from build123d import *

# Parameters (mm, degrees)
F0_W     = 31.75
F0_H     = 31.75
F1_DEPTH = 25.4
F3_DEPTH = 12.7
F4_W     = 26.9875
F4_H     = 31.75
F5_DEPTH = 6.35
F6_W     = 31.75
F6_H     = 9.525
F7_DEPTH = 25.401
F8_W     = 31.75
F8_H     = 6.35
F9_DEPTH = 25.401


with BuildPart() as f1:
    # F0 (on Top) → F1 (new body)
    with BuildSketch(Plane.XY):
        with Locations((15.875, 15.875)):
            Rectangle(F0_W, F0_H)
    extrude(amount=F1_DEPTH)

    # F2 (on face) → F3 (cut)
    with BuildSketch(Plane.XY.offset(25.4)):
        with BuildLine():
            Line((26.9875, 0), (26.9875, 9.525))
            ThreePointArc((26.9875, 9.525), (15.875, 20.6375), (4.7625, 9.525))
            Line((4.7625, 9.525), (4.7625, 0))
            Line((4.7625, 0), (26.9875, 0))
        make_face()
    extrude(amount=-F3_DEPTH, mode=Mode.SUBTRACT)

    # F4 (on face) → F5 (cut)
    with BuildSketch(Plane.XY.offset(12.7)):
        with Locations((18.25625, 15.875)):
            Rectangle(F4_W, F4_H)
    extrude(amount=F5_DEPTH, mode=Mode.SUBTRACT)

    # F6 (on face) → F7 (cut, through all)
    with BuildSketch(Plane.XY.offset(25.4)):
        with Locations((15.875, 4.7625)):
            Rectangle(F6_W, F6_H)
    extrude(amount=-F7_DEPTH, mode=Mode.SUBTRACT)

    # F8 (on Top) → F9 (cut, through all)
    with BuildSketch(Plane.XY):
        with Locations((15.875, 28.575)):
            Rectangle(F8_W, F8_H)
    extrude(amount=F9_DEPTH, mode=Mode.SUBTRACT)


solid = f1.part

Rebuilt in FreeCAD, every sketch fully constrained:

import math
import FreeCAD as App
import Part
import Sketcher
Q = App.Units.Quantity


def add_polygon(sketch, points):
    """Adds a closed chain of lines whose ends are joined by coincident constraints."""
    first, n = sketch.GeometryCount, len(points)
    for a, b in zip(points, points[1:] + points[:1]):
        sketch.addGeometry(Part.LineSegment(App.Vector(*a, 0), App.Vector(*b, 0)), False)
    for i in range(n):
        sketch.addConstraint(Sketcher.Constraint("Coincident", first + i, 2, first + (i + 1) % n, 1))

doc = App.newDocument("Part")
body = doc.addObject("PartDesign::Body", "Body")

sketch1 = doc.addObject("Sketcher::SketchObject", "Sketch")
body.addObject(sketch1)
sketch1.AttachmentSupport = (doc.XY_Plane, [""])
sketch1.MapMode = "FlatFace"
add_polygon(sketch1, [(0, 32), (0, 0), (32, 0), (32, 32)])
sketch1.addConstraint(Sketcher.Constraint("Vertical", 0))
sketch1.addConstraint(Sketcher.Constraint("Horizontal", 1))
sketch1.addConstraint(Sketcher.Constraint("Vertical", 2))
sketch1.addConstraint(Sketcher.Constraint("Horizontal", 3))
sketch1.addConstraint(Sketcher.Constraint("Coincident", 0, 2, -1, 1))
sketch1.addConstraint(Sketcher.Constraint("Equal", 3, 0))
sketch1.addConstraint(Sketcher.Constraint("DistanceX", 1, 1, 1, 2, Q("1.25 in")))
pad1 = doc.addObject("PartDesign::Pad", "Pad")
body.addObject(pad1)
pad1.Profile = sketch1
pad1.Length = Q("1 in")

sketch2 = doc.addObject("Sketcher::SketchObject", "Sketch001")
body.addObject(sketch2)
sketch2.AttachmentSupport = (doc.XY_Plane, [""])
sketch2.MapMode = "FlatFace"
sketch2.AttachmentOffset = App.Placement(App.Vector(0, 0, 1 * 25.4), App.Rotation())
sketch2.addGeometry(Part.LineSegment(App.Vector(27, 0, 0), App.Vector(27, 10, 0)), False)
sketch2.addGeometry(Part.ArcOfCircle(Part.Circle(App.Vector(16, 10, 0), App.Vector(0, 0, 1), 11), math.radians(0), math.radians(180)), False)
sketch2.addGeometry(Part.LineSegment(App.Vector(5, 10, 0), App.Vector(5, 0, 0)), False)
sketch2.addGeometry(Part.LineSegment(App.Vector(5, 0, 0), App.Vector(27, 0, 0)), False)
sketch2.addConstraint(Sketcher.Constraint("Tangent", 0, 2, 1, 1))
sketch2.addConstraint(Sketcher.Constraint("Tangent", 1, 2, 2, 1))
sketch2.addConstraint(Sketcher.Constraint("Coincident", 2, 2, 3, 1))
sketch2.addConstraint(Sketcher.Constraint("Coincident", 3, 2, 0, 1))
sketch2.addConstraint(Sketcher.Constraint("Vertical", 0))
sketch2.addConstraint(Sketcher.Constraint("Vertical", 2))
sketch2.addConstraint(Sketcher.Constraint("Horizontal", 3))
sketch2.addConstraint(Sketcher.Constraint("PointOnObject", 2, 2, -1))
sketch2.addConstraint(Sketcher.Constraint("Radius", 1, Q("0.4375 in")))
sketch2.addConstraint(Sketcher.Constraint("DistanceY", 0, 1, 0, 2, Q("0.375 in")))
sketch2.addConstraint(Sketcher.Constraint("DistanceX", -1, 1, 1, 3, Q("0.625 in")))
pocket1 = doc.addObject("PartDesign::Pocket", "Pocket")
body.addObject(pocket1)
pocket1.Profile = sketch2
pocket1.Length = Q("0.5 in")

sketch3 = doc.addObject("Sketcher::SketchObject", "Sketch002")
body.addObject(sketch3)
sketch3.AttachmentSupport = (doc.XY_Plane, [""])
sketch3.MapMode = "FlatFace"
sketch3.AttachmentOffset = App.Placement(App.Vector(0, 0, 0.5 * 25.4), App.Rotation())
add_polygon(sketch3, [(5, 32), (5, 0), (32, 0), (32, 32)])
sketch3.addConstraint(Sketcher.Constraint("Vertical", 0))
sketch3.addConstraint(Sketcher.Constraint("Horizontal", 1))
sketch3.addConstraint(Sketcher.Constraint("Vertical", 2))
sketch3.addConstraint(Sketcher.Constraint("Horizontal", 3))
sketch3.addConstraint(Sketcher.Constraint("PointOnObject", 0, 2, -1))
sketch3.addConstraint(Sketcher.Constraint("DistanceY", 0, 2, 0, 1, Q("1.25 in")))
sketch3.addConstraint(Sketcher.Constraint("DistanceX", 1, 1, 1, 2, Q("1.0625 in")))
sketch3.addConstraint(Sketcher.Constraint("DistanceX", -1, 1, 1, 2, Q("1.25 in")))
pocket2 = doc.addObject("PartDesign::Pocket", "Pocket001")
body.addObject(pocket2)
pocket2.Profile = sketch3
pocket2.Length = Q("0.25 in")
pocket2.Reversed = True

sketch4 = doc.addObject("Sketcher::SketchObject", "Sketch003")
body.addObject(sketch4)
sketch4.AttachmentSupport = (doc.XY_Plane, [""])
sketch4.MapMode = "FlatFace"
sketch4.AttachmentOffset = App.Placement(App.Vector(0, 0, 1 * 25.4), App.Rotation())
add_polygon(sketch4, [(0, 10), (0, 0), (32, 0), (32, 10)])
sketch4.addConstraint(Sketcher.Constraint("Vertical", 0))
sketch4.addConstraint(Sketcher.Constraint("Horizontal", 1))
sketch4.addConstraint(Sketcher.Constraint("Vertical", 2))
sketch4.addConstraint(Sketcher.Constraint("Horizontal", 3))
sketch4.addConstraint(Sketcher.Constraint("Coincident", 0, 2, -1, 1))
sketch4.addConstraint(Sketcher.Constraint("DistanceX", 1, 1, 1, 2, Q("1.25 in")))
sketch4.addConstraint(Sketcher.Constraint("DistanceY", 0, 2, 0, 1, Q("0.375 in")))
pocket3 = doc.addObject("PartDesign::Pocket", "Pocket002")
body.addObject(pocket3)
pocket3.Profile = sketch4
pocket3.Type = "ThroughAll"

sketch5 = doc.addObject("Sketcher::SketchObject", "Sketch004")
body.addObject(sketch5)
sketch5.AttachmentSupport = (doc.XY_Plane, [""])
sketch5.MapMode = "FlatFace"
add_polygon(sketch5, [(0, 32), (0, 25), (32, 25), (32, 32)])
sketch5.addConstraint(Sketcher.Constraint("Vertical", 0))
sketch5.addConstraint(Sketcher.Constraint("Horizontal", 1))
sketch5.addConstraint(Sketcher.Constraint("Vertical", 2))
sketch5.addConstraint(Sketcher.Constraint("Horizontal", 3))
sketch5.addConstraint(Sketcher.Constraint("PointOnObject", 0, 2, -2))
sketch5.addConstraint(Sketcher.Constraint("DistanceY", -1, 1, 0, 2, Q("1 in")))
sketch5.addConstraint(Sketcher.Constraint("DistanceX", 1, 1, 1, 2, Q("1.25 in")))
sketch5.addConstraint(Sketcher.Constraint("DistanceY", 0, 2, 0, 1, Q("0.25 in")))
pocket4 = doc.addObject("PartDesign::Pocket", "Pocket003")
body.addObject(pocket4)
pocket4.Profile = sketch5
pocket4.Type = "ThroughAll"
pocket4.Reversed = True

doc.recompute()
